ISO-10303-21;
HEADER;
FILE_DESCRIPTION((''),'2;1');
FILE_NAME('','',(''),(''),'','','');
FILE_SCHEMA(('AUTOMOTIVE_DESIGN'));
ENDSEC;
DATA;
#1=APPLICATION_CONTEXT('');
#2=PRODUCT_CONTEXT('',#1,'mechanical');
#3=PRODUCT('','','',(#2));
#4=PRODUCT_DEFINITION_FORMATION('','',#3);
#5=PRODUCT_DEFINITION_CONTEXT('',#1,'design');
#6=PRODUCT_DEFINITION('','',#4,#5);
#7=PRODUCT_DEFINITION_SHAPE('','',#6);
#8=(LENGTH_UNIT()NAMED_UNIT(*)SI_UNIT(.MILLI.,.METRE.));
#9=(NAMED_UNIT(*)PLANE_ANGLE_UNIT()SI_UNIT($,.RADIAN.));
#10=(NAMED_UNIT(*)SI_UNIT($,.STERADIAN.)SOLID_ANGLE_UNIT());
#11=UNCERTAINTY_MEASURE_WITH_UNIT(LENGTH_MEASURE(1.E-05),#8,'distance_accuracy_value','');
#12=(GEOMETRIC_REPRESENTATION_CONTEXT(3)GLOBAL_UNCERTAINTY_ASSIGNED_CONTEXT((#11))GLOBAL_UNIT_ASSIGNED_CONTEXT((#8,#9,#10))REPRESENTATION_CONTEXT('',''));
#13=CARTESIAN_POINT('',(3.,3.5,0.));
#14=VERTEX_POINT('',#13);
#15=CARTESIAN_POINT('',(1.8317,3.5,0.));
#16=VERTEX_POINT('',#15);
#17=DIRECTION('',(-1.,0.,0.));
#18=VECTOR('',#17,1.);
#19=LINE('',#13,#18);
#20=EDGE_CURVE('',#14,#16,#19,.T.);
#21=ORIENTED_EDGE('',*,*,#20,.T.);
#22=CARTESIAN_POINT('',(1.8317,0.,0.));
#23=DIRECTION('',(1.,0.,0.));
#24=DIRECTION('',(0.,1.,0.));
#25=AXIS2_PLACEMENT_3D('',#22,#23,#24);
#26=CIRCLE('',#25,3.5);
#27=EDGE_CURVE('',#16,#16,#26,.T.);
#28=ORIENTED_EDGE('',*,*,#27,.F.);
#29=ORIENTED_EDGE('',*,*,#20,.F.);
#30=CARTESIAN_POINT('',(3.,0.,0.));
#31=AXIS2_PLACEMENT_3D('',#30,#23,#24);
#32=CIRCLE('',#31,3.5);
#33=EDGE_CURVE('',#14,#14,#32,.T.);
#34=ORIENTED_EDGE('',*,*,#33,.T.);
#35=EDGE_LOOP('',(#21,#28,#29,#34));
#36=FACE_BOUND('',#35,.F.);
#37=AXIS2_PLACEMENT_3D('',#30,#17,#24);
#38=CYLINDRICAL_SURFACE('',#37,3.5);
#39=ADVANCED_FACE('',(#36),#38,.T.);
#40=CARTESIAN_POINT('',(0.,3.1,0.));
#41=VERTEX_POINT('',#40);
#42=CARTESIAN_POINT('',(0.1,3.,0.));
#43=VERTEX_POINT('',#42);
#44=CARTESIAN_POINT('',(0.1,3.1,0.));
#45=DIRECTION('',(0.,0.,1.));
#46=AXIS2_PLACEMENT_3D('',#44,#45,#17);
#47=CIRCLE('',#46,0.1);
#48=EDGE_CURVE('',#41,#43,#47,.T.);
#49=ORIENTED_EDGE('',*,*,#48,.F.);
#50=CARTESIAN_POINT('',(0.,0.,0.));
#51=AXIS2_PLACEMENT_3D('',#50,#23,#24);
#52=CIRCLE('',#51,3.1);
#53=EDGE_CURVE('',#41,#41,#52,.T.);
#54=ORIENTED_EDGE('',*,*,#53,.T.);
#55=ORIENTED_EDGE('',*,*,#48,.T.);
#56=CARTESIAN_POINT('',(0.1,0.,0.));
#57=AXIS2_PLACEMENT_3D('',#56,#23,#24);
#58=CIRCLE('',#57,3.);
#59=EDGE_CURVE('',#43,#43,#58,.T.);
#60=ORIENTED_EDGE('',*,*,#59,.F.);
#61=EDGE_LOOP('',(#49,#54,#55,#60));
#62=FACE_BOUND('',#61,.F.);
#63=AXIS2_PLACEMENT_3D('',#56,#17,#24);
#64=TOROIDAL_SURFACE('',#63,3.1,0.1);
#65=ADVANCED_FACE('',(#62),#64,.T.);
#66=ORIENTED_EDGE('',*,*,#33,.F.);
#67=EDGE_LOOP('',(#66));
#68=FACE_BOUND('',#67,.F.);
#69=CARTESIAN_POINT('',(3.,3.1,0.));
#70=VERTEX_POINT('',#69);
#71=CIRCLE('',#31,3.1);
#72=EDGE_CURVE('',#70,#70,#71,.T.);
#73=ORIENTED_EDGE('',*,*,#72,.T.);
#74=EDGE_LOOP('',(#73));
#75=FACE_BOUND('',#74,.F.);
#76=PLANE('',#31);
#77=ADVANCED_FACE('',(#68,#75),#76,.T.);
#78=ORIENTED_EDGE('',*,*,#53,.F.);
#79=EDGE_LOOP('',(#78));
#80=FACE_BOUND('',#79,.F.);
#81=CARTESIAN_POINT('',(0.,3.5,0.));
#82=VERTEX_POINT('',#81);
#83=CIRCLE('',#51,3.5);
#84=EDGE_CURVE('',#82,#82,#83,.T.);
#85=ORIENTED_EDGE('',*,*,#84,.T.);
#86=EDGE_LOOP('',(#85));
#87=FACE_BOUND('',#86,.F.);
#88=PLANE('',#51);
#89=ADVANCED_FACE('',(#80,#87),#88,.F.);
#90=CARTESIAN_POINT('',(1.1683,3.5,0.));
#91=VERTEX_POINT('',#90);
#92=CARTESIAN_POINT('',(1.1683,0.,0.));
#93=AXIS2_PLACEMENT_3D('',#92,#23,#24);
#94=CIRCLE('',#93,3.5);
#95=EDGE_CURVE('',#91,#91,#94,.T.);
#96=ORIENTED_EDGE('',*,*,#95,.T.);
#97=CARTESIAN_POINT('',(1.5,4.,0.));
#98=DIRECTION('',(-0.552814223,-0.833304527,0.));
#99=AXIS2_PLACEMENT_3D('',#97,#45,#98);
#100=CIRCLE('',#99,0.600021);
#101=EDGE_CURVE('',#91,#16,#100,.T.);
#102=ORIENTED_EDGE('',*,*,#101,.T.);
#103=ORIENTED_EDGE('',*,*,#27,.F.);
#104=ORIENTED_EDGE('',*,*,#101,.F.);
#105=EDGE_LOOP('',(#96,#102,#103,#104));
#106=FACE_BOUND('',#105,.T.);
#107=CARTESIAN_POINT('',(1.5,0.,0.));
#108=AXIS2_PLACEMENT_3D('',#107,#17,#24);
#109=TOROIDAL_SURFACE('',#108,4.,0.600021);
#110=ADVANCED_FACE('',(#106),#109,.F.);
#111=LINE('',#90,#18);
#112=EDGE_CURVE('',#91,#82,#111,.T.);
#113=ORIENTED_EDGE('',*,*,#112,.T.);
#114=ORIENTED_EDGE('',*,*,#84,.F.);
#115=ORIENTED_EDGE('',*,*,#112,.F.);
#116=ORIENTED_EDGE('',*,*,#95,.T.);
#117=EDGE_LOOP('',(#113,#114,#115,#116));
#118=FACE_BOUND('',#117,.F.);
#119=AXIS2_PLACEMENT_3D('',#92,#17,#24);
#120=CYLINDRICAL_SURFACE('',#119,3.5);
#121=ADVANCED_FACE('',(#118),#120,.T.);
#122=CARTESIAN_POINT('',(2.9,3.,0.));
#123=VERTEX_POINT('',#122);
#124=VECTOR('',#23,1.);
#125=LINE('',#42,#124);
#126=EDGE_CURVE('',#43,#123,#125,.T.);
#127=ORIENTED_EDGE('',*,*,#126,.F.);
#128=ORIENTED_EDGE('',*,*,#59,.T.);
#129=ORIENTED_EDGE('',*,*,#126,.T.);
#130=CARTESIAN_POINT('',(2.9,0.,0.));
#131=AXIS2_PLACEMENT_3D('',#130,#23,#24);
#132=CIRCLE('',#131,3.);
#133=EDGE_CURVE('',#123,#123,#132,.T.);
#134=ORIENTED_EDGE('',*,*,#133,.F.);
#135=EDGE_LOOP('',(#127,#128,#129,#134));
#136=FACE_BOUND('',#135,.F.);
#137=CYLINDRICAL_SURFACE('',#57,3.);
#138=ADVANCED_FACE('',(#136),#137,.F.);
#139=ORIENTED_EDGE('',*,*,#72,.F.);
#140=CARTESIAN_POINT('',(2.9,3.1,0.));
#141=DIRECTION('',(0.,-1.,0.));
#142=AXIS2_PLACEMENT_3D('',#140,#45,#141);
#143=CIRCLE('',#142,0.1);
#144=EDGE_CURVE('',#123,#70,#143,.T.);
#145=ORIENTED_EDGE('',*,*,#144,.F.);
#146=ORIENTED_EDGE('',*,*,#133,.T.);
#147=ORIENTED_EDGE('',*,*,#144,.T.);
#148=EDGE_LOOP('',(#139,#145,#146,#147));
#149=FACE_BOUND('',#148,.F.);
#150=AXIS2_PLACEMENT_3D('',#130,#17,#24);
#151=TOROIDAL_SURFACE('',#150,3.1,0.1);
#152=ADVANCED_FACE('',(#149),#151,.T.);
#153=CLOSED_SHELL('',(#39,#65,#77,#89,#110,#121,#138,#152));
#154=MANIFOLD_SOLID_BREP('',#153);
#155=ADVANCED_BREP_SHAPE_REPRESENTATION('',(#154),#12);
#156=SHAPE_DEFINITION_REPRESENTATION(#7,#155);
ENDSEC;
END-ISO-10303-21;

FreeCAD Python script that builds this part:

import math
import FreeCAD as App
import Part
import Sketcher
from FreeCAD import Vector

doc = App.newDocument("Part")
body = doc.addObject("PartDesign::Body", "Body")

# Sketch on XY plane
sketch1 = body.newObject("Sketcher::SketchObject", "Sketch")
sketch1.AttachmentSupport = (doc.getObject("XY_Plane"), [""])
sketch1.MapMode = "FlatFace"
sketch1.addGeometry(Part.LineSegment(Vector(0, 3.5, 0), Vector(0, 3.1, 0)), False)
sketch1.addGeometry(Part.ArcOfCircle(Part.Circle(Vector(0.1, 3.1, 0), Vector(0, 0, 1), 0.1), math.radians(180), math.radians(270)), False)
sketch1.addGeometry(Part.LineSegment(Vector(0.1, 3, 0), Vector(2.9, 3, 0)), False)
sketch1.addGeometry(Part.ArcOfCircle(Part.Circle(Vector(2.9, 3.1, 0), Vector(0, 0, 1), 0.1), math.radians(-90), math.radians(0)), False)
sketch1.addGeometry(Part.LineSegment(Vector(3, 3.1, 0), Vector(3, 3.5, 0)), False)
sketch1.addGeometry(Part.LineSegment(Vector(3, 3.5, 0), Vector(1.8317, 3.5, 0)), False)
sketch1.addGeometry(Part.ArcOfCircle(Part.Circle(Vector(1.5, 4, 0), Vector(0, 0, 1), 0.600021), math.radians(-123.560295), math.radians(-56.439705)), False)
sketch1.addGeometry(Part.LineSegment(Vector(1.1683, 3.5, 0), Vector(0, 3.5, 0)), False)
sketch1.addConstraint(Sketcher.Constraint("Tangent", 0, 2, 1, 1))
sketch1.addConstraint(Sketcher.Constraint("Tangent", 1, 2, 2, 1))
sketch1.addConstraint(Sketcher.Constraint("Tangent", 2, 2, 3, 1))
sketch1.addConstraint(Sketcher.Constraint("Tangent", 3, 2, 4, 1))
sketch1.addConstraint(Sketcher.Constraint("Coincident", 4, 2, 5, 1))
sketch1.addConstraint(Sketcher.Constraint("Coincident", 5, 2, 6, 2))
sketch1.addConstraint(Sketcher.Constraint("Coincident", 6, 1, 7, 1))
sketch1.addConstraint(Sketcher.Constraint("Coincident", 7, 2, 0, 1))
sketch1.addConstraint(Sketcher.Constraint("Vertical", 0))
sketch1.addConstraint(Sketcher.Constraint("Horizontal", 2))
sketch1.addConstraint(Sketcher.Constraint("Vertical", 4))
sketch1.addConstraint(Sketcher.Constraint("Horizontal", 5))
sketch1.addConstraint(Sketcher.Constraint("Horizontal", 7))
sketch1.addConstraint(Sketcher.Constraint("Equal", 1, 3))
sketch1.addConstraint(Sketcher.Constraint("PointOnObject", 0, 2, -2))
sketch1.addConstraint(Sketcher.Constraint("Horizontal", 5, 2, 6, 1))
sketch1.addConstraint(Sketcher.Constraint("Equal", 5, 7))
sketch1.addConstraint(Sketcher.Constraint("Radius", 1, 0.1))
sketch1.addConstraint(Sketcher.Constraint("Radius", 6, 0.6))
sketch1.addConstraint(Sketcher.Constraint("DistanceX", 2, 1, 2, 2, 2.8))
sketch1.addConstraint(Sketcher.Constraint("DistanceY", 0, 2, 0, 1, 0.4))
sketch1.addConstraint(Sketcher.Constraint("DistanceY", -1, 1, 6, 3, 4.0))
sketch1.addConstraint(Sketcher.Constraint("DistanceY", -1, 1, 1, 2, 3.0))
revolution = body.newObject("PartDesign::Revolution", "Revolution")
revolution.Profile = sketch1
revolution.ReferenceAxis = (sketch1, ["H_Axis"])
revolution.Angle = 360

doc.recompute()
